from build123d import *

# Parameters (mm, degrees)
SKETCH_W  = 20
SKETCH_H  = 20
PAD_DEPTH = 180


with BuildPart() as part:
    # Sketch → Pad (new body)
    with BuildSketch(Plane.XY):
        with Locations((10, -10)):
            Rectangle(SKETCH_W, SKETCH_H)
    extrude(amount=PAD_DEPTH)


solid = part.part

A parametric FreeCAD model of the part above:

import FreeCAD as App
import Part
import Sketcher
Q = App.Units.Quantity

doc = App.newDocument("Part")
params = doc.addObject("Spreadsheet::Sheet", "Params")
for row, (alias, value) in enumerate([
    ("sketch1_width", "20 mm"),
    ("pad1_length", "180 mm"),
], start=1):
    params.set(f"A{row}", alias)
    params.set(f"B{row}", "=" + value)
    params.setAlias(f"B{row}", alias)

body = doc.addObject("PartDesign::Body", "Body")

# Sketch on XY plane
sketch1 = body.newObject("Sketcher::SketchObject", "Sketch")
sketch1.AttachmentSupport = (doc.getObject("XY_Plane"), [""])
sketch1.MapMode = "FlatFace"
sketch1.addGeometry(Part.LineSegment(App.Vector(0, 0, 0), App.Vector(0, -20, 0)), False)
sketch1.addGeometry(Part.LineSegment(App.Vector(0, -20, 0), App.Vector(20, -20, 0)), False)
sketch1.addGeometry(Part.LineSegment(App.Vector(20, -20, 0), App.Vector(20, 0, 0)), False)
sketch1.addGeometry(Part.LineSegment(App.Vector(20, 0, 0), App.Vector(0, 0, 0)), False)
sketch1.addConstraint(Sketcher.Constraint("Coincident", 0, 2, 1, 1))
sketch1.addConstraint(Sketcher.Constraint("Coincident", 1, 2, 2, 1))
sketch1.addConstraint(Sketcher.Constraint("Coincident", 2, 2, 3, 1))
sketch1.addConstraint(Sketcher.Constraint("Coincident", 3, 2, 0, 1))
sketch1.addConstraint(Sketcher.Constraint("Vertical", 0))
sketch1.addConstraint(Sketcher.Constraint("Horizontal", 1))
sketch1.addConstraint(Sketcher.Constraint("Vertical", 2))
sketch1.addConstraint(Sketcher.Constraint("Horizontal", 3))
sketch1.addConstraint(Sketcher.Constraint("Coincident", 3, 2, -1, 1))
sketch1.addConstraint(Sketcher.Constraint("Equal", 3, 0))
sketch1.addConstraint(Sketcher.Constraint("DistanceX", 1, 1, 1, 2, Q("20 mm")))
sketch1.setExpression("Constraints[10]", "Params.sketch1_width")
pad1 = body.newObject("PartDesign::Pad", "Pad")
pad1.Profile = sketch1
pad1.setExpression("Length", "Params.pad1_length")

doc.recompute()
